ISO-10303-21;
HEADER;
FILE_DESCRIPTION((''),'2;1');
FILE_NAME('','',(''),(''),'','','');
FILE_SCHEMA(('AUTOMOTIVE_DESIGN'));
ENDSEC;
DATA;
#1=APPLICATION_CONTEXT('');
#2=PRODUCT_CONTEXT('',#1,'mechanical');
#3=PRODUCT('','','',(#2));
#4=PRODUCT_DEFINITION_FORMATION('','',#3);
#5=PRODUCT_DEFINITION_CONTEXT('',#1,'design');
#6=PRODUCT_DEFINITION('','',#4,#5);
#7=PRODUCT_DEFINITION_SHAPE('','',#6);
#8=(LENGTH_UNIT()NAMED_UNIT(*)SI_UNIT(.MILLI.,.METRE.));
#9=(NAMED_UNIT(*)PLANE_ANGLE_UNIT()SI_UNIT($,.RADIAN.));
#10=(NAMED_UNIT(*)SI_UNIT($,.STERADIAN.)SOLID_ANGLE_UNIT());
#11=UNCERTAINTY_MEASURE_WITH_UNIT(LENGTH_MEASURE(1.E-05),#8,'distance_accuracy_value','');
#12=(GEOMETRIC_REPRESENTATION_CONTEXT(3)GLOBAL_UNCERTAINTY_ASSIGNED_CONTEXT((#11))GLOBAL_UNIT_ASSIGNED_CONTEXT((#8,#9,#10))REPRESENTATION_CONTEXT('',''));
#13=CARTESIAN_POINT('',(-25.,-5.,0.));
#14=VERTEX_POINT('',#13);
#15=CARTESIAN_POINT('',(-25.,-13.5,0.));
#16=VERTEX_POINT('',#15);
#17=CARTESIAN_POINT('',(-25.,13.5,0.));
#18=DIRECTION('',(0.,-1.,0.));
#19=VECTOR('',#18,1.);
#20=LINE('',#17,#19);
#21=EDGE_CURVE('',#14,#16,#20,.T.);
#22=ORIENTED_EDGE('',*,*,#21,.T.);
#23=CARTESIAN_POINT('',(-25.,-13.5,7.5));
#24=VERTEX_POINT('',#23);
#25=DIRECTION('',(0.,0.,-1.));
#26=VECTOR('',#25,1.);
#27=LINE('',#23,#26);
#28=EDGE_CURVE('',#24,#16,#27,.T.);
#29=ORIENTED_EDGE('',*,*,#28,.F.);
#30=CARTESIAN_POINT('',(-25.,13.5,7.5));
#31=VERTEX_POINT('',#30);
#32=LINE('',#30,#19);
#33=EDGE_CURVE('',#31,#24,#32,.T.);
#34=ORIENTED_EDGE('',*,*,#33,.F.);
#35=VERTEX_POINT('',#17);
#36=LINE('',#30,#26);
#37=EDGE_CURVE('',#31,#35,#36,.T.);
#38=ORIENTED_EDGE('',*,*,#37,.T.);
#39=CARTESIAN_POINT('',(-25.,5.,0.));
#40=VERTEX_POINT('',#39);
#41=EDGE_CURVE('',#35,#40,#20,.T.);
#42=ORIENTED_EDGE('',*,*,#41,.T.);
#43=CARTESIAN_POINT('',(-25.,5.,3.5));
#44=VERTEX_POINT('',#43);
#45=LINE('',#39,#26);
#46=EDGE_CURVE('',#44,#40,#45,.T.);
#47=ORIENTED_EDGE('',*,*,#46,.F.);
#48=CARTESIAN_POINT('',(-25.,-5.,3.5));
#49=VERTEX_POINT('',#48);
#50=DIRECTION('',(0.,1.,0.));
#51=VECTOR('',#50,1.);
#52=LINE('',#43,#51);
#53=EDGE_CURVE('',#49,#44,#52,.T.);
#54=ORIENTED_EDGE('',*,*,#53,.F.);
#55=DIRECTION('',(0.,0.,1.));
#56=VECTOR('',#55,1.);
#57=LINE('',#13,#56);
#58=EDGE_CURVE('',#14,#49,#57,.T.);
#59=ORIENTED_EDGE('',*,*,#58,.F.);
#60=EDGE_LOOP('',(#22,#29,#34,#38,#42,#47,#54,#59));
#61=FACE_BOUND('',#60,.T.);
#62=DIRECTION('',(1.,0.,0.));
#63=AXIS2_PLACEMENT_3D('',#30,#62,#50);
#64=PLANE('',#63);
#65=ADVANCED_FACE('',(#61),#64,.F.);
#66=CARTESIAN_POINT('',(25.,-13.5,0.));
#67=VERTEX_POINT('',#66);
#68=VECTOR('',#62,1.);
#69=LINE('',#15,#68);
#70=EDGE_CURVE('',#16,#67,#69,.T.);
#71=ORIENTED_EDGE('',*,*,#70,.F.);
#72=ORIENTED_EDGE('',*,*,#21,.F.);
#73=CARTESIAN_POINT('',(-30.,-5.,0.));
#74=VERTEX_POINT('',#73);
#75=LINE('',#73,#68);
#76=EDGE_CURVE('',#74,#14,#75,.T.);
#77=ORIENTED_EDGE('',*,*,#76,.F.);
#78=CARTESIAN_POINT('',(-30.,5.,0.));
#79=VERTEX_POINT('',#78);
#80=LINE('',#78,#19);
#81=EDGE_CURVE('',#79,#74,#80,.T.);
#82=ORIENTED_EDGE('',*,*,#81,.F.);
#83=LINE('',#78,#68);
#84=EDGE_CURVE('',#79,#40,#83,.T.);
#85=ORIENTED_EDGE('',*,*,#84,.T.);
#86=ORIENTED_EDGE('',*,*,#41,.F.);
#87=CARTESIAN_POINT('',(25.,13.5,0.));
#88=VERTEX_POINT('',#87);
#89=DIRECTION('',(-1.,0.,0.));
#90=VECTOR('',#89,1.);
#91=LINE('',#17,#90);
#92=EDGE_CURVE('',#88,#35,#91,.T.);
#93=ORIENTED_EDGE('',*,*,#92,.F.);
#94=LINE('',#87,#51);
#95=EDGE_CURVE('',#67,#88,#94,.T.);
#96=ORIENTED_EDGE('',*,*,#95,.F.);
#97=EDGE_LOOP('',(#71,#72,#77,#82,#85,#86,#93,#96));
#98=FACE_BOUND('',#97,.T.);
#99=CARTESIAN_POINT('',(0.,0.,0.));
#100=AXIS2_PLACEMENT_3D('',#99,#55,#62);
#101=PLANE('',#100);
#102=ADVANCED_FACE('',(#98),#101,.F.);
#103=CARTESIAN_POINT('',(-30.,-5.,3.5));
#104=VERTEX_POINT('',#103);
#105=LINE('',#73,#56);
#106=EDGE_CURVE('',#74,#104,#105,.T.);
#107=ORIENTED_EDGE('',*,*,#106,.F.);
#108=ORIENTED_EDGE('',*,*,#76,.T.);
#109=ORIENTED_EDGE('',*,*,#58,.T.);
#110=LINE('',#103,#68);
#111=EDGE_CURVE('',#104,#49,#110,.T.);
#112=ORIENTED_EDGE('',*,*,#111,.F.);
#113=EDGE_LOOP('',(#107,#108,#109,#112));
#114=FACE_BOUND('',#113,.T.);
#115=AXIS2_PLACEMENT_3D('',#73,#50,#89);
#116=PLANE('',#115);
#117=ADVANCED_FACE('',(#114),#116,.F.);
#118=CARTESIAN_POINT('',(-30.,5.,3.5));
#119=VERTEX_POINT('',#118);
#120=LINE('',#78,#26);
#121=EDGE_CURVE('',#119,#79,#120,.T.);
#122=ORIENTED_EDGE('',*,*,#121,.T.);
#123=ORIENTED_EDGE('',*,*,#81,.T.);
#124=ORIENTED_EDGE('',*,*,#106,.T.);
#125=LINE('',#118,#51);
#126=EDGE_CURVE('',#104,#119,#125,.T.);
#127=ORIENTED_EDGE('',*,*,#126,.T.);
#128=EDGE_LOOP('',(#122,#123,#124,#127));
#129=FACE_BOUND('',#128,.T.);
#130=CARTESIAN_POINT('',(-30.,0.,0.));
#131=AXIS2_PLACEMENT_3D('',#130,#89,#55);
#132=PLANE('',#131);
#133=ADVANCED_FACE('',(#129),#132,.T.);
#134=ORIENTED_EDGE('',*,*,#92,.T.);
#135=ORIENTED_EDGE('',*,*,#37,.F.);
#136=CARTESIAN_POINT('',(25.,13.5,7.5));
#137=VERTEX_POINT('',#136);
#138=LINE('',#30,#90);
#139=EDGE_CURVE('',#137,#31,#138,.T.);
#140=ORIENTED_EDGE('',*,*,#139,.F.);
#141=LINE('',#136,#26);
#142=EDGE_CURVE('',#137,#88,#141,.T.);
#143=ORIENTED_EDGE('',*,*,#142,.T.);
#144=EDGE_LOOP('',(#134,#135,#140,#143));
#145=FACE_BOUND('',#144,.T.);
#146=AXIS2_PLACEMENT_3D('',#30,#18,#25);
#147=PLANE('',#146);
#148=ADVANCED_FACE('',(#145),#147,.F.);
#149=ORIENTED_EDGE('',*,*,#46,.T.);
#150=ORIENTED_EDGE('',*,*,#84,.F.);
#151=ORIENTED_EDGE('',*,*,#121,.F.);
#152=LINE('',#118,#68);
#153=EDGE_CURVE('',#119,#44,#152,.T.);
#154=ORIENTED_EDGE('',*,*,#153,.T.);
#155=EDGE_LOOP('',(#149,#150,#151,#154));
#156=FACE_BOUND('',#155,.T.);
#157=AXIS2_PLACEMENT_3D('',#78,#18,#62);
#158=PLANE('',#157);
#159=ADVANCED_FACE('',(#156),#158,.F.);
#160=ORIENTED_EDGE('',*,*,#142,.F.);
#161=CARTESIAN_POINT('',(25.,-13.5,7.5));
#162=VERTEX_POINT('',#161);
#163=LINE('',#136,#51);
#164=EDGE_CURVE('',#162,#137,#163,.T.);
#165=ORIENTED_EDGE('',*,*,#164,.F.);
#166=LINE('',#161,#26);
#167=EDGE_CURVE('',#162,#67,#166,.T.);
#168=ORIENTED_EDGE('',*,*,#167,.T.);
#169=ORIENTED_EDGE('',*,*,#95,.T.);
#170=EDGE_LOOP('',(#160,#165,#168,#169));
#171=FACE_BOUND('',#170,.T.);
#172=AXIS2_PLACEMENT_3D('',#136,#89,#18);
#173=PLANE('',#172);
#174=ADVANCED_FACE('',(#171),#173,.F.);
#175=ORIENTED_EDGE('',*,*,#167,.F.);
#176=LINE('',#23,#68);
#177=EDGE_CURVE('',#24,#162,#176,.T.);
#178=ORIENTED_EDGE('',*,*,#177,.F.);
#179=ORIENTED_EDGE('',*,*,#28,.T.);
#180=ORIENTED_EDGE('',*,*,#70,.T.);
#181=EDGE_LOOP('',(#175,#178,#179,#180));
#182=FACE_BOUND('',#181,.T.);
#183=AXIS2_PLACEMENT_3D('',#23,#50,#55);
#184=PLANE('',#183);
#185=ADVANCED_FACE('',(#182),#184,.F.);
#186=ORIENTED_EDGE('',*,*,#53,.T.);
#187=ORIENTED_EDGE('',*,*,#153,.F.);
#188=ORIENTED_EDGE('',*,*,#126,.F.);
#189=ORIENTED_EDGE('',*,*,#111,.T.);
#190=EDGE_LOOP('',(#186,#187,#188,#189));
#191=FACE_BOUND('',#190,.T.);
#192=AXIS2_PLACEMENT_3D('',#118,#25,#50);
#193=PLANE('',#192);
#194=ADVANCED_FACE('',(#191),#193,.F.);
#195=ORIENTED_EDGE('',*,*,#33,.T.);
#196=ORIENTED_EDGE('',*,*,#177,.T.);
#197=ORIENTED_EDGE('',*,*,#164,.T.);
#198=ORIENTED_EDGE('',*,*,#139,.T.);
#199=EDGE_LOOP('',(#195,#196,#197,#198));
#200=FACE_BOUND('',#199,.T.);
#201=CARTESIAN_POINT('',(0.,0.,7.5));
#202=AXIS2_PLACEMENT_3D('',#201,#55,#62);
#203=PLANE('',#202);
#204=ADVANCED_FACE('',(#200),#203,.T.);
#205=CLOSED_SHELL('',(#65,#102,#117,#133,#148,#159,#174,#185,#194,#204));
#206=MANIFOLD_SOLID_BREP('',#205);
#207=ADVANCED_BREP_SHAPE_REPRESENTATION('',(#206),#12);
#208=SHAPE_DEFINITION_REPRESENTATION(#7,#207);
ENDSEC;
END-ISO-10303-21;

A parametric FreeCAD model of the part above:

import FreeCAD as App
import Part
import Sketcher


def add_polygon(sketch, points):
    """Adds a closed chain of lines whose ends are joined by coincident constraints."""
    first, n = sketch.GeometryCount, len(points)
    for a, b in zip(points, points[1:] + points[:1]):
        sketch.addGeometry(Part.LineSegment(App.Vector(*a, 0), App.Vector(*b, 0)), False)
    for i in range(n):
        sketch.addConstraint(Sketcher.Constraint("Coincident", first + i, 2, first + (i + 1) % n, 1))

doc = App.newDocument("Part")
body = doc.addObject("PartDesign::Body", "Body")

# Sketch on XY plane
sketch1 = body.newObject("Sketcher::SketchObject", "Sketch")
sketch1.AttachmentSupport = (doc.getObject("XY_Plane"), [""])
sketch1.MapMode = "FlatFace"
add_polygon(sketch1, [(-25, 14), (-25, -14), (25, -14), (25, 14)])  # lines 0-3
sketch1.addConstraint([
    Sketcher.Constraint("Vertical", 0),
    Sketcher.Constraint("Horizontal", 1),
    Sketcher.Constraint("Vertical", 2),
    Sketcher.Constraint("Horizontal", 3),
    Sketcher.Constraint("Symmetric", 0, 2, 2, 2, -1, 1),
    Sketcher.Constraint("DistanceX", 1, 1, 1, 2, 50.0),
    Sketcher.Constraint("DistanceY", 0, 2, 0, 1, 27.0),
])
pad1 = body.newObject("PartDesign::Pad", "Pad")
pad1.Profile = sketch1
pad1.Length = 7.5

# Sketch on YZ plane
sketch2 = body.newObject("Sketcher::SketchObject", "Sketch001")
sketch2.AttachmentSupport = (doc.getObject("YZ_Plane"), [""])
sketch2.MapMode = "FlatFace"
sketch2.AttachmentOffset = App.Placement(App.Vector(0, 0, -25), App.Rotation())
add_polygon(sketch2, [(5, 0), (-5, 0), (-5, 3.5), (5, 3.5)])  # lines 0-3
sketch2.addConstraint([
    Sketcher.Constraint("Horizontal", 0),
    Sketcher.Constraint("Vertical", 1),
    Sketcher.Constraint("Horizontal", 2),
    Sketcher.Constraint("Vertical", 3),
    Sketcher.Constraint("Symmetric", 0, 2, 3, 2, -1, 1),
    Sketcher.Constraint("DistanceX", 0, 2, 0, 1, 10.0),
    Sketcher.Constraint("DistanceY", 1, 1, 1, 2, 3.5),
])
pad2 = body.newObject("PartDesign::Pad", "Pad001")
pad2.Profile = sketch2
pad2.Length = 5
pad2.Reversed = True

doc.recompute()
